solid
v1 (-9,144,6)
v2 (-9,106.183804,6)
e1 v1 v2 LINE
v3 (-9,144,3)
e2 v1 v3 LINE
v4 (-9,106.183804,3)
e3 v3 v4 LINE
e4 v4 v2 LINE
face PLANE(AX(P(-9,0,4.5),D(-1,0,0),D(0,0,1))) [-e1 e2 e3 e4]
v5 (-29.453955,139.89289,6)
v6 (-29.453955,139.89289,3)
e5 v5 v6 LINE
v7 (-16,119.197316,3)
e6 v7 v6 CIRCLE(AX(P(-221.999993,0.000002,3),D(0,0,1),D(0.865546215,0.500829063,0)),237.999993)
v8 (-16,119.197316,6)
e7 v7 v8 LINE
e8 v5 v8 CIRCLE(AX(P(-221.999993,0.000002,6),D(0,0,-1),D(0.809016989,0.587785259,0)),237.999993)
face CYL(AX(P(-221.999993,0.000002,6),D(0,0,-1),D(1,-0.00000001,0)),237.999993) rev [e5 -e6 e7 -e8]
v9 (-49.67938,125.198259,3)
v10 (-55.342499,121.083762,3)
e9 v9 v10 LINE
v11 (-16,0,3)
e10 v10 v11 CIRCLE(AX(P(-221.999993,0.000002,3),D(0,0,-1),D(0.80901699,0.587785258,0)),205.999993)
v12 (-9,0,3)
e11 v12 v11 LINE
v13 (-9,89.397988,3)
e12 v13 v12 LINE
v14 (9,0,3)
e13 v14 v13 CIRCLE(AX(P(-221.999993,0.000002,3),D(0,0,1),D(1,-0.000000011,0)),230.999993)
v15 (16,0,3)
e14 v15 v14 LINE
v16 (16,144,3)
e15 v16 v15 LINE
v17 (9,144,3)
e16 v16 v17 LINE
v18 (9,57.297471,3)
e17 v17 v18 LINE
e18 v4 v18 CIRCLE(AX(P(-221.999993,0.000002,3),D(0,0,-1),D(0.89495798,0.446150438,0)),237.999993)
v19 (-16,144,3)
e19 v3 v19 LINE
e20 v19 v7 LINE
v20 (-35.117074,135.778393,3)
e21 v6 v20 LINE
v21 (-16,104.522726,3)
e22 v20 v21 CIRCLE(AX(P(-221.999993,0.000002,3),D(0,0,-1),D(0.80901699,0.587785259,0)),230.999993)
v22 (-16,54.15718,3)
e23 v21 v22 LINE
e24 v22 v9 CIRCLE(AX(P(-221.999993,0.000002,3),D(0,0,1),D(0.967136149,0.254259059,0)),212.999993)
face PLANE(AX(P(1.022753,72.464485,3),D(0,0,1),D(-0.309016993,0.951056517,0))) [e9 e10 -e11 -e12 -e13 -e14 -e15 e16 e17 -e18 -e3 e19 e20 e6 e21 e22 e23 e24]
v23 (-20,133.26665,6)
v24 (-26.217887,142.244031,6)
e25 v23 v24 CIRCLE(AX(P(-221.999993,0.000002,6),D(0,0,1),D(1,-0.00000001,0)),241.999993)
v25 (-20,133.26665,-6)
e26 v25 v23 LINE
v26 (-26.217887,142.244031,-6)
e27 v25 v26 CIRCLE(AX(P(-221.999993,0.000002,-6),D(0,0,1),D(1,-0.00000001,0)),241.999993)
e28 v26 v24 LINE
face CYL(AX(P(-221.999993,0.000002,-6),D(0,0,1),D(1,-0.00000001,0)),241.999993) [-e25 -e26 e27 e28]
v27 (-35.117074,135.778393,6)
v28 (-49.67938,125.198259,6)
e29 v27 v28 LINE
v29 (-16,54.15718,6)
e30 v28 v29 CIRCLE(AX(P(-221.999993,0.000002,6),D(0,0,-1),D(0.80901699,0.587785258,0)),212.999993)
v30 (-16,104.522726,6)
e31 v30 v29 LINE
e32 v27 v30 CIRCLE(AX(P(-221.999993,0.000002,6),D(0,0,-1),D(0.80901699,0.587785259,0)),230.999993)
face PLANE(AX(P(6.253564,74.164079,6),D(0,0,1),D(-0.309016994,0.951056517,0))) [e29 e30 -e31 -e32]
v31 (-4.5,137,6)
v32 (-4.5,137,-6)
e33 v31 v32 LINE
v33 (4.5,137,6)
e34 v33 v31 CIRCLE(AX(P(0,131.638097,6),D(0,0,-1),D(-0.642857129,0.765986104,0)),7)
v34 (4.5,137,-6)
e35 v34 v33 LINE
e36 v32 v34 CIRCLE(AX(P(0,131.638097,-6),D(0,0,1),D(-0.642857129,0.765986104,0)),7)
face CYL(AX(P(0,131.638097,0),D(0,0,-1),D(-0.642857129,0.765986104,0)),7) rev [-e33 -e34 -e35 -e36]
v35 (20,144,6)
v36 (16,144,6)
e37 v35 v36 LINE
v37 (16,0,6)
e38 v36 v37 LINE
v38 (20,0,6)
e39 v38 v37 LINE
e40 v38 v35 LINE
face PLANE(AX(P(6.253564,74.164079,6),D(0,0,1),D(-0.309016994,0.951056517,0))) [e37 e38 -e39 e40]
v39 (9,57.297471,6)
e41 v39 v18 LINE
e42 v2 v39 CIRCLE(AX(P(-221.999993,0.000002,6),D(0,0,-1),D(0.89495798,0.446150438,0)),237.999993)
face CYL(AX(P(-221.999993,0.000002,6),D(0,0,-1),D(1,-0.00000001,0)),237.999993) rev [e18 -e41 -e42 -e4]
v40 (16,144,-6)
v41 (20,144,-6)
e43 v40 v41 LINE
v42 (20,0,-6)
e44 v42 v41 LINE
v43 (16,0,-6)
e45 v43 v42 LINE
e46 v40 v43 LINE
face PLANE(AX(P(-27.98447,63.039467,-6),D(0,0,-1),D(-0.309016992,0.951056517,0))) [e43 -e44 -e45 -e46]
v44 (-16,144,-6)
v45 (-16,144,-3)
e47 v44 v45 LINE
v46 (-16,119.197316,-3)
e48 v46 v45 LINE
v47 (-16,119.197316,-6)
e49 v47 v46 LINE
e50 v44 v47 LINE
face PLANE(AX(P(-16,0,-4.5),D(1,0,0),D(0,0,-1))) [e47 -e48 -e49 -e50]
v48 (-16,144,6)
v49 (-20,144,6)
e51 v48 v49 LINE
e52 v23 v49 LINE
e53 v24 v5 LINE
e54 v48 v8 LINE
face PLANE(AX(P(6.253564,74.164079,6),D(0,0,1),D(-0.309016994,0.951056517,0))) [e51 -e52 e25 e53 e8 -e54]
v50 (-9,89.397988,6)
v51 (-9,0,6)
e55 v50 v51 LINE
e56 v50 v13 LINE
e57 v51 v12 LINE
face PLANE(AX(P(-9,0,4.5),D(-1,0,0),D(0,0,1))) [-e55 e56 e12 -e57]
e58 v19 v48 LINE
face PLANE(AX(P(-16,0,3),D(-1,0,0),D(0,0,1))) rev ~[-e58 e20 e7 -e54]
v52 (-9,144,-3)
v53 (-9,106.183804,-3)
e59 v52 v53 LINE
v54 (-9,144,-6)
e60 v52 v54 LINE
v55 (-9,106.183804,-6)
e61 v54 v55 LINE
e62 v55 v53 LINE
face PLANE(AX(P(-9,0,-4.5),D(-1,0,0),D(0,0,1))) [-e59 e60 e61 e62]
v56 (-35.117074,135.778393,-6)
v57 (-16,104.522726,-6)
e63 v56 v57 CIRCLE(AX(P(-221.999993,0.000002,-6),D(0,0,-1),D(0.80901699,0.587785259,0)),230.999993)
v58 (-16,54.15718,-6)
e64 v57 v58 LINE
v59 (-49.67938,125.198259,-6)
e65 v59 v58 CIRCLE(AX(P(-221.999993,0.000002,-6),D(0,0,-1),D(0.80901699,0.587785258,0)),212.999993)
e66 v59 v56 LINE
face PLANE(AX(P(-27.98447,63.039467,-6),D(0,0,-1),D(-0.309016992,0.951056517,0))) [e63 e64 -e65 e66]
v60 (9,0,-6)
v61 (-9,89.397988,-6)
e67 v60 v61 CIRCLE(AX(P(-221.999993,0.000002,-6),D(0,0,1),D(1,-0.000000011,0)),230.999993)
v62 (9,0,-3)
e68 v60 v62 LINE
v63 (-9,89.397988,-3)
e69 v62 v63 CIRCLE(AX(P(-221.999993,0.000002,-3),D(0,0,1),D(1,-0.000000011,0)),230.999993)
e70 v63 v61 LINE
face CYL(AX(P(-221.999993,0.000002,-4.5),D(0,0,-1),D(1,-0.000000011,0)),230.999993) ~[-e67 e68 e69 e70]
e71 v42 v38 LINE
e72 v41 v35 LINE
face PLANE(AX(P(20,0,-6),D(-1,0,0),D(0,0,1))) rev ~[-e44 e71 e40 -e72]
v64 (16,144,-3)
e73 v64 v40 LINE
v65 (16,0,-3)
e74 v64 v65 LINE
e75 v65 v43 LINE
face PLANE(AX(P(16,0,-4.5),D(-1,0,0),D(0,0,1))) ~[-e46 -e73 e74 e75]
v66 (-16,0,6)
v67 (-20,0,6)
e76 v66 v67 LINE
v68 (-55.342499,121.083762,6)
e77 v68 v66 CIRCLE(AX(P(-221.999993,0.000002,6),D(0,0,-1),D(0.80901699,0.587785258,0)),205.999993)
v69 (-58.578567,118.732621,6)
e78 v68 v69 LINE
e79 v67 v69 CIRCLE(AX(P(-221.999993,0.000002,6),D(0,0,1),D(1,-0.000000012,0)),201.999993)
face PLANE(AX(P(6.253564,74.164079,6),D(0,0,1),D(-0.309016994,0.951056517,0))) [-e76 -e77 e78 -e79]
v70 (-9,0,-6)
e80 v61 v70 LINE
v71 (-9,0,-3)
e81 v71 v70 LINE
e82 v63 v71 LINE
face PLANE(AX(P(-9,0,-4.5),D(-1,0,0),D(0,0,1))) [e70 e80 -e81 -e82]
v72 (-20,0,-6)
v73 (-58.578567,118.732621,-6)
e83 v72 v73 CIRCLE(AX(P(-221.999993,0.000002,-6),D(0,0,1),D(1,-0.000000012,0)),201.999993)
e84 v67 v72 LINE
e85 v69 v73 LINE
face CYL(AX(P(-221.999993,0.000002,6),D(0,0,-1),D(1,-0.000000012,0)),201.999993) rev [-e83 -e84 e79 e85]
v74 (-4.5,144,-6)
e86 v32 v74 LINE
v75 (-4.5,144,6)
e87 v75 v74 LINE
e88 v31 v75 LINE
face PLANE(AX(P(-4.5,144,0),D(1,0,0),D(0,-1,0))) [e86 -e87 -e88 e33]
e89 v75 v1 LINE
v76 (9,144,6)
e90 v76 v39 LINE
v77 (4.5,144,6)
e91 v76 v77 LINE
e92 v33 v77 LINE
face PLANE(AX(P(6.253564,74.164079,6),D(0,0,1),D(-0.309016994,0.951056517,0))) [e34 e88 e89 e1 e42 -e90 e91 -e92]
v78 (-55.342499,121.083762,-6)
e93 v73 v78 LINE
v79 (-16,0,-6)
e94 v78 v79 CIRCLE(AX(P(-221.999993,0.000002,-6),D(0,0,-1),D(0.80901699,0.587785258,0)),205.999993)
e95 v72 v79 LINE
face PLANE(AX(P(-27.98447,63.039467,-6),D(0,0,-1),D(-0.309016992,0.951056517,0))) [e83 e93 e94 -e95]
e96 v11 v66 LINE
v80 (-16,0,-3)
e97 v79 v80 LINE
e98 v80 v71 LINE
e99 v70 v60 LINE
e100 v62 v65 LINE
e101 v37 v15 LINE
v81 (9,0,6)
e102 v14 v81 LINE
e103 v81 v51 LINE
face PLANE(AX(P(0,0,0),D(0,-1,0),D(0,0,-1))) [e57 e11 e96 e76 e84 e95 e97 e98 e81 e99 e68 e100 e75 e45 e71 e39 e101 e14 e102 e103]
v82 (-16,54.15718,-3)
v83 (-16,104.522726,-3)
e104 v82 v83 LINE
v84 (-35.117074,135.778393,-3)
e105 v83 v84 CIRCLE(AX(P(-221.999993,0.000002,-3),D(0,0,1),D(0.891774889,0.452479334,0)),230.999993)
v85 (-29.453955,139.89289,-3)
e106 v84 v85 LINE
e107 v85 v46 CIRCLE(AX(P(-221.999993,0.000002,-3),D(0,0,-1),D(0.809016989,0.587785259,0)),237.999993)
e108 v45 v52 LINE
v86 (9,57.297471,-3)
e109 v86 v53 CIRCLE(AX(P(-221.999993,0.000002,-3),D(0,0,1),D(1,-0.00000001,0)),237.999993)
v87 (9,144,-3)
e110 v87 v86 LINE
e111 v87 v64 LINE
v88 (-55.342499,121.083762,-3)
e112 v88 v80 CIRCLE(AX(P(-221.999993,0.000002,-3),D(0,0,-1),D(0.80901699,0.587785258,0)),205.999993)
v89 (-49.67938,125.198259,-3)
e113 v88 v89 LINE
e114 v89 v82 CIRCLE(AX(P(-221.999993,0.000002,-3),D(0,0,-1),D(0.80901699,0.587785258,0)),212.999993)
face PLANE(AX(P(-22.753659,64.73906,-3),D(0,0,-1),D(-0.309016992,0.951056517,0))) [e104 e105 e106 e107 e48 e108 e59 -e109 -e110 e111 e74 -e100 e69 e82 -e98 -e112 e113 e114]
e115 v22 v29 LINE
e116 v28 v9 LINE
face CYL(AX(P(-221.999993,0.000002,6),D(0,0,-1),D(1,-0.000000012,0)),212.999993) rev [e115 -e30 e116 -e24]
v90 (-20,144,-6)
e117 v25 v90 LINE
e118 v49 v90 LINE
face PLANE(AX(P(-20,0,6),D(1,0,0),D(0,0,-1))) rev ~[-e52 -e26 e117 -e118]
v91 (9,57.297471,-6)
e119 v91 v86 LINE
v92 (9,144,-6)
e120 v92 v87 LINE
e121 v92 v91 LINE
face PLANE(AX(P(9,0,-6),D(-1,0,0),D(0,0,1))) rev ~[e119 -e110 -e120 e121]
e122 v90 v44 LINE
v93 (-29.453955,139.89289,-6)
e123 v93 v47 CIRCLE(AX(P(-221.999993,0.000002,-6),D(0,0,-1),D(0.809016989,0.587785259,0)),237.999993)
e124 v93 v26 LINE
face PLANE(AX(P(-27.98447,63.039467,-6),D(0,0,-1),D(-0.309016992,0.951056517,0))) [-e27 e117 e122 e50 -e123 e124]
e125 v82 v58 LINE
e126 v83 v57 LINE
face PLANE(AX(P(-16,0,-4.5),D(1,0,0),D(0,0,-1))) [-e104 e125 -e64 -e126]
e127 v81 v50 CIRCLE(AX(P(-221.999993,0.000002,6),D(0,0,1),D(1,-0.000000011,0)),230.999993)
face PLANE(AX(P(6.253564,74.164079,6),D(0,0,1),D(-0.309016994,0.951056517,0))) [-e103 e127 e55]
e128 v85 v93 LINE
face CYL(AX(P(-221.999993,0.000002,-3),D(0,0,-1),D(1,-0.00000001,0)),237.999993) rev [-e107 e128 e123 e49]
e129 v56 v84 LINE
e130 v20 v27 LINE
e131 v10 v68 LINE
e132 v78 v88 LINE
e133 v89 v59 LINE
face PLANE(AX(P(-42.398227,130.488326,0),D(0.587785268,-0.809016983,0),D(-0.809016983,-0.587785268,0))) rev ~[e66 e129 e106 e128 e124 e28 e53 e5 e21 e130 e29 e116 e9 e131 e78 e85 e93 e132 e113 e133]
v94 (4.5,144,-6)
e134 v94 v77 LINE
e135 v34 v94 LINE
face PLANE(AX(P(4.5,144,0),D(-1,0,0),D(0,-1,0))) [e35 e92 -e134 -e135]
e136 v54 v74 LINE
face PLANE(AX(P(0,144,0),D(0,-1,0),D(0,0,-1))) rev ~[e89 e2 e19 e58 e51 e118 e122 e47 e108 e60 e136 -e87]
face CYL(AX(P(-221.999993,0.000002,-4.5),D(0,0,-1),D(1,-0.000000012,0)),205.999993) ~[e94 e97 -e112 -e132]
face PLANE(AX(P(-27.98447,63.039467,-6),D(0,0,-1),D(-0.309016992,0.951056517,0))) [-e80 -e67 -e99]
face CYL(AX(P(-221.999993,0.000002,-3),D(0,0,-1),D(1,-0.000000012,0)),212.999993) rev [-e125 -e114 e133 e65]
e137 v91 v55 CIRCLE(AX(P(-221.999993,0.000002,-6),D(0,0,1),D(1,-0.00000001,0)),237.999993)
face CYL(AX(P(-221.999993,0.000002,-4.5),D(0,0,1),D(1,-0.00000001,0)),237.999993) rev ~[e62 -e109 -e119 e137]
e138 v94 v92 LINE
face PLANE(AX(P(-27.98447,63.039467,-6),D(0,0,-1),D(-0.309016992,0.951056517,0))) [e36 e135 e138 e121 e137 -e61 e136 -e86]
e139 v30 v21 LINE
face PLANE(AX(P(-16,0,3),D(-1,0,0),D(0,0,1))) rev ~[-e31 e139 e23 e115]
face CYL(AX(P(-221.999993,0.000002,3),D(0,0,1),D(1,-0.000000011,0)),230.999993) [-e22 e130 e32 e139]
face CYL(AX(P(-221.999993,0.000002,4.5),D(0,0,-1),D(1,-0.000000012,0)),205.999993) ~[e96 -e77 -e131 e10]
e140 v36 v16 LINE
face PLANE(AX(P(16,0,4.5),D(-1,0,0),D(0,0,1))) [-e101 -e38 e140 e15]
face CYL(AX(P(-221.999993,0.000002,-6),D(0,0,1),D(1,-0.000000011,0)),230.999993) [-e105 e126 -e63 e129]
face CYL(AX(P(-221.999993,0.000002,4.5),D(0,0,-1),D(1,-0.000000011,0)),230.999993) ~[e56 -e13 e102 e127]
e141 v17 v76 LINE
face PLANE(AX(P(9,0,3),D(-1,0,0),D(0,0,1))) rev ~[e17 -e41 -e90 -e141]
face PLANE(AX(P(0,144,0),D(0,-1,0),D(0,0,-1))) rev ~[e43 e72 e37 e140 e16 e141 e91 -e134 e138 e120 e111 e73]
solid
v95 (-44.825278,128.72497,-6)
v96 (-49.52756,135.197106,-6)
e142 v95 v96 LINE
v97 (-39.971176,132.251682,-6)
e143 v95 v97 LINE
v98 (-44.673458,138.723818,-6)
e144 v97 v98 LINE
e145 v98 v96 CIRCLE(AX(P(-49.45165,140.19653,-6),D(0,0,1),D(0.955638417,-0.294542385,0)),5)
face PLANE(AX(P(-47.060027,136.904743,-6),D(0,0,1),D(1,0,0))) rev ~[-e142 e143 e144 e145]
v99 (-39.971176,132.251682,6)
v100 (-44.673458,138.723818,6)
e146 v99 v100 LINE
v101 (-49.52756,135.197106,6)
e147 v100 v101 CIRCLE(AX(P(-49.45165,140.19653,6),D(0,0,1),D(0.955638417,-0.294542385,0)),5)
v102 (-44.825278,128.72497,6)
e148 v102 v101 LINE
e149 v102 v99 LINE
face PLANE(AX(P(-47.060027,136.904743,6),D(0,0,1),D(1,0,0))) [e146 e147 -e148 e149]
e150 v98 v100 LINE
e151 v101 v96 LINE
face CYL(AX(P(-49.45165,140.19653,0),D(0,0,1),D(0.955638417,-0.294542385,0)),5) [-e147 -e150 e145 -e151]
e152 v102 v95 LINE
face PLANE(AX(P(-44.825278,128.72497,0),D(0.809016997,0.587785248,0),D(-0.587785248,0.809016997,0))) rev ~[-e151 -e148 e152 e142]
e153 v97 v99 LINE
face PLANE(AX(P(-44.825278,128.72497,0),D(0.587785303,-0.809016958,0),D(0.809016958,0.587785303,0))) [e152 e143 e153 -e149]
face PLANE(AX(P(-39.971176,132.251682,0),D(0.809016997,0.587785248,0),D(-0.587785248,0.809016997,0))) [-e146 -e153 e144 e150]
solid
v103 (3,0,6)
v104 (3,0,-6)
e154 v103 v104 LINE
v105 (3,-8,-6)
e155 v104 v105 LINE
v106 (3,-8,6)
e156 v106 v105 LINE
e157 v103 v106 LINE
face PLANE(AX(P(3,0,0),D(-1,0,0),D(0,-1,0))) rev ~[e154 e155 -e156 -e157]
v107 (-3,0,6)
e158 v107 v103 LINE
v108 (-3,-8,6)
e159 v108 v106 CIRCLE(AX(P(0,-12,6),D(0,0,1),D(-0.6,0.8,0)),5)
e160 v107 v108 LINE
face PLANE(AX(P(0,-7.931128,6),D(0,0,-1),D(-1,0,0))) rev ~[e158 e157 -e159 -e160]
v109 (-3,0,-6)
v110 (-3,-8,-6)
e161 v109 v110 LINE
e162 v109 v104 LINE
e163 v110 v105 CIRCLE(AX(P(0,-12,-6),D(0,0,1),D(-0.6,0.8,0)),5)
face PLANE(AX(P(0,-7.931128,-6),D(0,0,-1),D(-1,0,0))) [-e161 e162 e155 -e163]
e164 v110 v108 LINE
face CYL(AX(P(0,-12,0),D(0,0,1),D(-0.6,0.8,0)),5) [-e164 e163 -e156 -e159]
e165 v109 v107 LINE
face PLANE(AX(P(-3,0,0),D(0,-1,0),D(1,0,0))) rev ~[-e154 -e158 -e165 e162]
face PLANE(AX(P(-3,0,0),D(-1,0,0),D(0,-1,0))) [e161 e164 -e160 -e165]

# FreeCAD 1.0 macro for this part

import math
import FreeCAD as App
import Part
import Sketcher

V = App.Vector
Q = App.Units.Quantity


def add_polygon(sketch, points):
    """Adds a closed chain of lines whose ends are joined by coincident constraints."""
    first, n = sketch.GeometryCount, len(points)
    for a, b in zip(points, points[1:] + points[:1]):
        sketch.addGeometry(Part.LineSegment(App.Vector(*a, 0), App.Vector(*b, 0)), False)
    for i in range(n):
        sketch.addConstraint(Sketcher.Constraint("Coincident", first + i, 2, first + (i + 1) % n, 1))

doc = App.newDocument("Part")
body = doc.addObject("PartDesign::Body", "Body")

# Sketch on XZ plane
sketch1 = doc.addObject("Sketcher::SketchObject", "Sketch")
body.addObject(sketch1)
sketch1.AttachmentSupport = (doc.XZ_Plane, [""])
sketch1.MapMode = "FlatFace"
add_polygon(sketch1, [(-20, 6), (-20, -6), (-16, -6), (-16, -3), (-9, -3), (-9, -6), (9, -6), (9, -3), (16, -3), (16, -6), (20, -6), (20, 6), (16, 6), (16, 3), (9, 3), (9, 6), (-9, 6), (-9, 3), (-16, 3), (-16, 6)])  # lines 0-19
sketch1.addConstraint(Sketcher.Constraint("Vertical", 0))
sketch1.addConstraint(Sketcher.Constraint("Horizontal", 1))
sketch1.addConstraint(Sketcher.Constraint("Vertical", 2))
sketch1.addConstraint(Sketcher.Constraint("Horizontal", 3))
sketch1.addConstraint(Sketcher.Constraint("Vertical", 4))
sketch1.addConstraint(Sketcher.Constraint("Horizontal", 5))
sketch1.addConstraint(Sketcher.Constraint("Vertical", 6))
sketch1.addConstraint(Sketcher.Constraint("Horizontal", 7))
sketch1.addConstraint(Sketcher.Constraint("Vertical", 8))
sketch1.addConstraint(Sketcher.Constraint("Horizontal", 9))
sketch1.addConstraint(Sketcher.Constraint("Vertical", 10))
sketch1.addConstraint(Sketcher.Constraint("Horizontal", 11))
sketch1.addConstraint(Sketcher.Constraint("Vertical", 12))
sketch1.addConstraint(Sketcher.Constraint("Horizontal", 13))
sketch1.addConstraint(Sketcher.Constraint("Vertical", 14))
sketch1.addConstraint(Sketcher.Constraint("Horizontal", 15))
sketch1.addConstraint(Sketcher.Constraint("Vertical", 16))
sketch1.addConstraint(Sketcher.Constraint("Horizontal", 17))
sketch1.addConstraint(Sketcher.Constraint("Vertical", 18))
sketch1.addConstraint(Sketcher.Constraint("Horizontal", 19))
sketch1.addConstraint(Sketcher.Constraint("Symmetric", 0, 2, 10, 2, -1, 1))
sketch1.addConstraint(Sketcher.Constraint("Symmetric", 2, 2, 12, 2, -1, 1))
sketch1.addConstraint(Sketcher.Constraint("Symmetric", 4, 2, 14, 2, -1, 1))
sketch1.addConstraint(Sketcher.Constraint("Symmetric", 6, 2, 16, 2, -1, 1))
sketch1.addConstraint(Sketcher.Constraint("Symmetric", 8, 2, 18, 2, -1, 1))
sketch1.addConstraint(Sketcher.Constraint("Symmetric", 3, 2, 6, 2, -2))
sketch1.addConstraint(Sketcher.Constraint("Symmetric", 1, 2, 8, 2, -2))
sketch1.addConstraint(Sketcher.Constraint("Horizontal", 1, 2, 4, 2))
sketch1.addConstraint(Sketcher.Constraint("DistanceX", 1, 1, 1, 2, 4.0))
sketch1.addConstraint(Sketcher.Constraint("DistanceX", 3, 1, 3, 2, 7.0))
sketch1.addConstraint(Sketcher.Constraint("DistanceX", 5, 1, 5, 2, 18.0))
sketch1.addConstraint(Sketcher.Constraint("DistanceY", 0, 2, 0, 1, 12.0))
sketch1.addConstraint(Sketcher.Constraint("DistanceY", 2, 1, 2, 2, 3.0))

# Sketch on XY plane
sketch2 = doc.addObject("Sketcher::SketchObject", "Sketch001")
body.addObject(sketch2)
sketch2.AttachmentSupport = (doc.XY_Plane, [""])
sketch2.MapMode = "FlatFace"
sketch2.addGeometry(Part.ArcOfCircle(Part.Circle(V(-221.999993, 0.000002, 0), V(0, 0, 1), 221.999993), math.radians(-0.000001), math.radians(36)), False)
sketch2.addConstraint(Sketcher.Constraint("Coincident", 0, 1, -1, 1))
sketch2.addConstraint(Sketcher.Constraint("Radius", 0, 221.999993))
sketch2.addConstraint(Sketcher.Constraint("DistanceX", 0, 2, -1, 1, 42.398227))
sketch2.addConstraint(Sketcher.Constraint("DistanceY", -1, 1, 0, 2, 130.488326))
doc.recompute()

additivepipe = doc.addObject("PartDesign::AdditivePipe", "AdditivePipe")
body.addObject(additivepipe)
additivepipe.Profile = sketch1
additivepipe.Spine = (sketch2, ["Edge1"])

# Sketch on XZ plane
sketch3 = doc.addObject("Sketcher::SketchObject", "Sketch002")
body.addObject(sketch3)
sketch3.AttachmentSupport = (doc.XZ_Plane, [""])
sketch3.MapMode = "FlatFace"
add_polygon(sketch3, [(-20, 6), (-20, -6), (-16, -6), (-16, -3), (-9, -3), (-9, -6), (9, -6), (9, -3), (16, -3), (16, -6), (20, -6), (20, 6), (16, 6), (16, 3), (9, 3), (9, 6), (-9, 6), (-9, 3), (-16, 3), (-16, 6)])  # lines 0-19
sketch3.addConstraint(Sketcher.Constraint("Vertical", 0))
sketch3.addConstraint(Sketcher.Constraint("Horizontal", 1))
sketch3.addConstraint(Sketcher.Constraint("Vertical", 2))
sketch3.addConstraint(Sketcher.Constraint("Horizontal", 3))
sketch3.addConstraint(Sketcher.Constraint("Vertical", 4))
sketch3.addConstraint(Sketcher.Constraint("Horizontal", 5))
sketch3.addConstraint(Sketcher.Constraint("Vertical", 6))
sketch3.addConstraint(Sketcher.Constraint("Horizontal", 7))
sketch3.addConstraint(Sketcher.Constraint("Vertical", 8))
sketch3.addConstraint(Sketcher.Constraint("Horizontal", 9))
sketch3.addConstraint(Sketcher.Constraint("Vertical", 10))
sketch3.addConstraint(Sketcher.Constraint("Horizontal", 11))
sketch3.addConstraint(Sketcher.Constraint("Vertical", 12))
sketch3.addConstraint(Sketcher.Constraint("Horizontal", 13))
sketch3.addConstraint(Sketcher.Constraint("Vertical", 14))
sketch3.addConstraint(Sketcher.Constraint("Horizontal", 15))
sketch3.addConstraint(Sketcher.Constraint("Vertical", 16))
sketch3.addConstraint(Sketcher.Constraint("Horizontal", 17))
sketch3.addConstraint(Sketcher.Constraint("Vertical", 18))
sketch3.addConstraint(Sketcher.Constraint("Horizontal", 19))
sketch3.addConstraint(Sketcher.Constraint("Symmetric", 0, 2, 10, 2, -1, 1))
sketch3.addConstraint(Sketcher.Constraint("Symmetric", 2, 2, 12, 2, -1, 1))
sketch3.addConstraint(Sketcher.Constraint("Symmetric", 4, 2, 14, 2, -1, 1))
sketch3.addConstraint(Sketcher.Constraint("Symmetric", 6, 2, 16, 2, -1, 1))
sketch3.addConstraint(Sketcher.Constraint("Symmetric", 8, 2, 18, 2, -1, 1))
sketch3.addConstraint(Sketcher.Constraint("Symmetric", 3, 2, 6, 2, -2))
sketch3.addConstraint(Sketcher.Constraint("Symmetric", 1, 2, 8, 2, -2))
sketch3.addConstraint(Sketcher.Constraint("Horizontal", 1, 2, 4, 2))
sketch3.addConstraint(Sketcher.Constraint("DistanceX", 1, 1, 1, 2, 4.0))
sketch3.addConstraint(Sketcher.Constraint("DistanceX", 3, 1, 3, 2, 7.0))
sketch3.addConstraint(Sketcher.Constraint("DistanceX", 5, 1, 5, 2, 18.0))
sketch3.addConstraint(Sketcher.Constraint("DistanceY", 0, 2, 0, 1, 12.0))
sketch3.addConstraint(Sketcher.Constraint("DistanceY", 2, 1, 2, 2, 3.0))

# Sketch on XY plane
sketch4 = doc.addObject("Sketcher::SketchObject", "Sketch003")
body.addObject(sketch4)
sketch4.AttachmentSupport = (doc.XY_Plane, [""])
sketch4.MapMode = "FlatFace"
sketch4.addGeometry(Part.LineSegment(V(0, 0, 0), V(0, 144, 0)), False)
sketch4.addConstraint(Sketcher.Constraint("Vertical", 0))
sketch4.addConstraint(Sketcher.Constraint("Coincident", 0, 1, -1, 1))
sketch4.addConstraint(Sketcher.Constraint("DistanceY", 0, 1, 0, 2, 144.0))
doc.recompute()

additivepipe2 = doc.addObject("PartDesign::AdditivePipe", "AdditivePipe001")
body.addObject(additivepipe2)
additivepipe2.Profile = sketch3
additivepipe2.Spine = (sketch4, ["Edge1"])

# Sketch on XZ plane
sketch5 = doc.addObject("Sketcher::SketchObject", "Sketch004")
body.addObject(sketch5)
sketch5.AttachmentSupport = (doc.XZ_Plane, [""])
sketch5.MapMode = "FlatFace"
add_polygon(sketch5, [(-16, 6), (-16, 3), (-9, 3), (-9, 6)])  # lines 0-3
sketch5.addConstraint(Sketcher.Constraint("Vertical", 0))
sketch5.addConstraint(Sketcher.Constraint("Horizontal", 1))
sketch5.addConstraint(Sketcher.Constraint("Vertical", 2))
sketch5.addConstraint(Sketcher.Constraint("Horizontal", 3))
sketch5.addConstraint(Sketcher.Constraint("DistanceX", 1, 1, 1, 2, 7.0))
sketch5.addConstraint(Sketcher.Constraint("DistanceY", 0, 2, 0, 1, 3.0))
sketch5.addConstraint(Sketcher.Constraint("DistanceX", 0, 2, -1, 1, 16.0))
sketch5.addConstraint(Sketcher.Constraint("DistanceY", -1, 1, 0, 2, 3.0))

# Sketch on XY plane
sketch6 = doc.addObject("Sketcher::SketchObject", "Sketch005")
body.addObject(sketch6)
sketch6.AttachmentSupport = (doc.XY_Plane, [""])
sketch6.MapMode = "FlatFace"
sketch6.addGeometry(Part.LineSegment(V(0, 0, 0), V(0, 144, 0)), False)
sketch6.addConstraint(Sketcher.Constraint("Vertical", 0))
sketch6.addConstraint(Sketcher.Constraint("Coincident", 0, 1, -1, 1))
sketch6.addConstraint(Sketcher.Constraint("DistanceY", 0, 1, 0, 2, 144.0))
doc.recompute()

subtractivepipe = doc.addObject("PartDesign::SubtractivePipe", "SubtractivePipe")
body.addObject(subtractivepipe)
subtractivepipe.Profile = sketch5
subtractivepipe.Spine = (sketch6, ["Edge1"])

# Sketch on XZ plane
sketch7 = doc.addObject("Sketcher::SketchObject", "Sketch006")
body.addObject(sketch7)
sketch7.AttachmentSupport = (doc.XZ_Plane, [""])
sketch7.MapMode = "FlatFace"
add_polygon(sketch7, [(-16, 6), (-16, 3), (-9, 3), (-9, 6)])  # lines 0-3
sketch7.addConstraint(Sketcher.Constraint("Vertical", 0))
sketch7.addConstraint(Sketcher.Constraint("Horizontal", 1))
sketch7.addConstraint(Sketcher.Constraint("Vertical", 2))
sketch7.addConstraint(Sketcher.Constraint("Horizontal", 3))
sketch7.addConstraint(Sketcher.Constraint("DistanceX", 1, 1, 1, 2, 7.0))
sketch7.addConstraint(Sketcher.Constraint("DistanceY", 0, 2, 0, 1, 3.0))
sketch7.addConstraint(Sketcher.Constraint("DistanceX", 0, 2, -1, 1, 16.0))
sketch7.addConstraint(Sketcher.Constraint("DistanceY", -1, 1, 0, 2, 3.0))

# Sketch on XY plane
sketch8 = doc.addObject("Sketcher::SketchObject", "Sketch007")
body.addObject(sketch8)
sketch8.AttachmentSupport = (doc.XY_Plane, [""])
sketch8.MapMode = "FlatFace"
sketch8.addGeometry(Part.ArcOfCircle(Part.Circle(V(-221.999993, 0.000002, 0), V(0, 0, 1), 221.999993), math.radians(-0.000001), math.radians(36)), False)
sketch8.addConstraint(Sketcher.Constraint("Coincident", 0, 1, -1, 1))
sketch8.addConstraint(Sketcher.Constraint("Radius", 0, 221.999993))
sketch8.addConstraint(Sketcher.Constraint("DistanceX", 0, 2, -1, 1, 42.398227))
sketch8.addConstraint(Sketcher.Constraint("DistanceY", -1, 1, 0, 2, 130.488326))
doc.recompute()

subtractivepipe2 = doc.addObject("PartDesign::SubtractivePipe", "SubtractivePipe001")
body.addObject(subtractivepipe2)
subtractivepipe2.Profile = sketch7
subtractivepipe2.Spine = (sketch8, ["Edge1"])

# Sketch on XZ plane
sketch9 = doc.addObject("Sketcher::SketchObject", "Sketch008")
body.addObject(sketch9)
sketch9.AttachmentSupport = (doc.XZ_Plane, [""])
sketch9.MapMode = "FlatFace"
add_polygon(sketch9, [(9, 6), (9, 3), (16, 3), (16, 6)])  # lines 0-3
sketch9.addConstraint(Sketcher.Constraint("Vertical", 0))
sketch9.addConstraint(Sketcher.Constraint("Horizontal", 1))
sketch9.addConstraint(Sketcher.Constraint("Vertical", 2))
sketch9.addConstraint(Sketcher.Constraint("Horizontal", 3))
sketch9.addConstraint(Sketcher.Constraint("DistanceX", 1, 1, 1, 2, 7.0))
sketch9.addConstraint(Sketcher.Constraint("DistanceY", 0, 2, 0, 1, 3.0))
sketch9.addConstraint(Sketcher.Constraint("DistanceX", -1, 1, 0, 2, 9.0))
sketch9.addConstraint(Sketcher.Constraint("DistanceY", -1, 1, 0, 2, 3.0))

# Sketch on XY plane
sketch10 = doc.addObject("Sketcher::SketchObject", "Sketch009")
body.addObject(sketch10)
sketch10.AttachmentSupport = (doc.XY_Plane, [""])
sketch10.MapMode = "FlatFace"
sketch10.addGeometry(Part.ArcOfCircle(Part.Circle(V(-221.999993, 0.000002, 0), V(0, 0, 1), 221.999993), math.radians(-0.000001), math.radians(36)), False)
sketch10.addConstraint(Sketcher.Constraint("Coincident", 0, 1, -1, 1))
sketch10.addConstraint(Sketcher.Constraint("Radius", 0, 221.999993))
sketch10.addConstraint(Sketcher.Constraint("DistanceX", 0, 2, -1, 1, 42.398227))
sketch10.addConstraint(Sketcher.Constraint("DistanceY", -1, 1, 0, 2, 130.488326))
doc.recompute()

subtractivepipe3 = doc.addObject("PartDesign::SubtractivePipe", "SubtractivePipe002")
body.addObject(subtractivepipe3)
subtractivepipe3.Profile = sketch9
subtractivepipe3.Spine = (sketch10, ["Edge1"])

# Sketch on XZ plane
sketch11 = doc.addObject("Sketcher::SketchObject", "Sketch010")
body.addObject(sketch11)
sketch11.AttachmentSupport = (doc.XZ_Plane, [""])
sketch11.MapMode = "FlatFace"
add_polygon(sketch11, [(9, 6), (9, 3), (16, 3), (16, 6)])  # lines 0-3
sketch11.addConstraint(Sketcher.Constraint("Vertical", 0))
sketch11.addConstraint(Sketcher.Constraint("Horizontal", 1))
sketch11.addConstraint(Sketcher.Constraint("Vertical", 2))
sketch11.addConstraint(Sketcher.Constraint("Horizontal", 3))
sketch11.addConstraint(Sketcher.Constraint("DistanceX", 1, 1, 1, 2, 7.0))
sketch11.addConstraint(Sketcher.Constraint("DistanceY", 0, 2, 0, 1, 3.0))
sketch11.addConstraint(Sketcher.Constraint("DistanceX", -1, 1, 0, 2, 9.0))
sketch11.addConstraint(Sketcher.Constraint("DistanceY", -1, 1, 0, 2, 3.0))

# Sketch on XY plane
sketch12 = doc.addObject("Sketcher::SketchObject", "Sketch011")
body.addObject(sketch12)
sketch12.AttachmentSupport = (doc.XY_Plane, [""])
sketch12.MapMode = "FlatFace"
sketch12.addGeometry(Part.LineSegment(V(0, 0, 0), V(0, 144, 0)), False)
sketch12.addConstraint(Sketcher.Constraint("Vertical", 0))
sketch12.addConstraint(Sketcher.Constraint("Coincident", 0, 1, -1, 1))
sketch12.addConstraint(Sketcher.Constraint("DistanceY", 0, 1, 0, 2, 144.0))
doc.recompute()

subtractivepipe4 = doc.addObject("PartDesign::SubtractivePipe", "SubtractivePipe003")
body.addObject(subtractivepipe4)
subtractivepipe4.Profile = sketch11
subtractivepipe4.Spine = (sketch12, ["Edge1"])
doc.recompute()

mirrored = doc.addObject("PartDesign::Mirrored", "Mirrored")
body.addObject(mirrored)
mirrored.Originals = [subtractivepipe4]
mirrored.MirrorPlane = (doc.XY_Plane, [""])
body.Tip = mirrored

# Sketch on XZ plane
sketch13 = doc.addObject("Sketcher::SketchObject", "Sketch012")
body.addObject(sketch13)
sketch13.AttachmentSupport = (doc.XZ_Plane, [""])
sketch13.MapMode = "FlatFace"
add_polygon(sketch13, [(-16, -3), (-16, -6), (-9, -6), (-9, -3)])  # lines 0-3
sketch13.addConstraint(Sketcher.Constraint("Vertical", 0))
sketch13.addConstraint(Sketcher.Constraint("Horizontal", 1))
sketch13.addConstraint(Sketcher.Constraint("Vertical", 2))
sketch13.addConstraint(Sketcher.Constraint("Horizontal", 3))
sketch13.addConstraint(Sketcher.Constraint("DistanceX", 1, 1, 1, 2, 7.0))
sketch13.addConstraint(Sketcher.Constraint("DistanceY", 0, 2, 0, 1, 3.0))
sketch13.addConstraint(Sketcher.Constraint("DistanceX", 0, 2, -1, 1, 16.0))
sketch13.addConstraint(Sketcher.Constraint("DistanceY", 0, 2, -1, 1, 6.0))

# Sketch on XY plane
sketch14 = doc.addObject("Sketcher::SketchObject", "Sketch013")
body.addObject(sketch14)
sketch14.AttachmentSupport = (doc.XY_Plane, [""])
sketch14.MapMode = "FlatFace"
sketch14.addGeometry(Part.ArcOfCircle(Part.Circle(V(-221.999993, 0.000002, 0), V(0, 0, 1), 221.999993), math.radians(-0.000001), math.radians(36)), False)
sketch14.addConstraint(Sketcher.Constraint("Coincident", 0, 1, -1, 1))
sketch14.addConstraint(Sketcher.Constraint("Radius", 0, 221.999993))
sketch14.addConstraint(Sketcher.Constraint("DistanceX", 0, 2, -1, 1, 42.398227))
sketch14.addConstraint(Sketcher.Constraint("DistanceY", -1, 1, 0, 2, 130.488326))
doc.recompute()

subtractivepipe5 = doc.addObject("PartDesign::SubtractivePipe", "SubtractivePipe004")
body.addObject(subtractivepipe5)
subtractivepipe5.Profile = sketch13
subtractivepipe5.Spine = (sketch14, ["Edge1"])

# Sketch on XZ plane
sketch15 = doc.addObject("Sketcher::SketchObject", "Sketch014")
body.addObject(sketch15)
sketch15.AttachmentSupport = (doc.XZ_Plane, [""])
sketch15.MapMode = "FlatFace"
add_polygon(sketch15, [(-16, -3), (-16, -6), (-9, -6), (-9, -3)])  # lines 0-3
sketch15.addConstraint(Sketcher.Constraint("Vertical", 0))
sketch15.addConstraint(Sketcher.Constraint("Horizontal", 1))
sketch15.addConstraint(Sketcher.Constraint("Vertical", 2))
sketch15.addConstraint(Sketcher.Constraint("Horizontal", 3))
sketch15.addConstraint(Sketcher.Constraint("DistanceX", 1, 1, 1, 2, 7.0))
sketch15.addConstraint(Sketcher.Constraint("DistanceY", 0, 2, 0, 1, 3.0))
sketch15.addConstraint(Sketcher.Constraint("DistanceX", 0, 2, -1, 1, 16.0))
sketch15.addConstraint(Sketcher.Constraint("DistanceY", 0, 2, -1, 1, 6.0))

# Sketch on XY plane
sketch16 = doc.addObject("Sketcher::SketchObject", "Sketch015")
body.addObject(sketch16)
sketch16.AttachmentSupport = (doc.XY_Plane, [""])
sketch16.MapMode = "FlatFace"
sketch16.addGeometry(Part.LineSegment(V(0, 0, 0), V(0, 144, 0)), False)
sketch16.addConstraint(Sketcher.Constraint("Vertical", 0))
sketch16.addConstraint(Sketcher.Constraint("Coincident", 0, 1, -1, 1))
sketch16.addConstraint(Sketcher.Constraint("DistanceY", 0, 1, 0, 2, 144.0))
doc.recompute()

subtractivepipe6 = doc.addObject("PartDesign::SubtractivePipe", "SubtractivePipe005")
body.addObject(subtractivepipe6)
subtractivepipe6.Profile = sketch15
subtractivepipe6.Spine = (sketch16, ["Edge1"])

# Sketch on XZ plane
sketch17 = doc.addObject("Sketcher::SketchObject", "Sketch016")
body.addObject(sketch17)
sketch17.AttachmentSupport = (doc.XZ_Plane, [""])
sketch17.MapMode = "FlatFace"
add_polygon(sketch17, [(9, -3), (9, -6), (16, -6), (16, -3)])  # lines 0-3
sketch17.addConstraint(Sketcher.Constraint("Vertical", 0))
sketch17.addConstraint(Sketcher.Constraint("Horizontal", 1))
sketch17.addConstraint(Sketcher.Constraint("Vertical", 2))
sketch17.addConstraint(Sketcher.Constraint("Horizontal", 3))
sketch17.addConstraint(Sketcher.Constraint("DistanceX", 1, 1, 1, 2, 7.0))
sketch17.addConstraint(Sketcher.Constraint("DistanceY", 0, 2, 0, 1, 3.0))
sketch17.addConstraint(Sketcher.Constraint("DistanceX", -1, 1, 0, 2, 9.0))
sketch17.addConstraint(Sketcher.Constraint("DistanceY", 0, 2, -1, 1, 6.0))

# Sketch on XY plane
sketch18 = doc.addObject("Sketcher::SketchObject", "Sketch017")
body.addObject(sketch18)
sketch18.AttachmentSupport = (doc.XY_Plane, [""])
sketch18.MapMode = "FlatFace"
sketch18.addGeometry(Part.ArcOfCircle(Part.Circle(V(-221.999993, 0.000002, 0), V(0, 0, 1), 221.999993), math.radians(-0.000001), math.radians(36)), False)
sketch18.addConstraint(Sketcher.Constraint("Coincident", 0, 1, -1, 1))
sketch18.addConstraint(Sketcher.Constraint("Radius", 0, 221.999993))
sketch18.addConstraint(Sketcher.Constraint("DistanceX", 0, 2, -1, 1, 42.398227))
sketch18.addConstraint(Sketcher.Constraint("DistanceY", -1, 1, 0, 2, 130.488326))
doc.recompute()

subtractivepipe7 = doc.addObject("PartDesign::SubtractivePipe", "SubtractivePipe006")
body.addObject(subtractivepipe7)
subtractivepipe7.Profile = sketch17
subtractivepipe7.Spine = (sketch18, ["Edge1"])

# Sketch on XY plane
sketch19 = doc.addObject("Sketcher::SketchObject", "Sketch018")
body.addObject(sketch19)
sketch19.AttachmentSupport = (doc.XY_Plane, [""])
sketch19.MapMode = "FlatFace"
sketch19.addGeometry(Part.LineSegment(V(4.5, 144, 0), V(-4.5, 144, 0)), False)
sketch19.addGeometry(Part.LineSegment(V(-4.5, 144, 0), V(-4.5, 137, 0)), False)
sketch19.addGeometry(Part.ArcOfCircle(Part.Circle(V(0, 131.638097, 0), V(0, 0, 1), 7), math.radians(130.0052), math.radians(409.9948)), False)
sketch19.addGeometry(Part.LineSegment(V(4.5, 137, 0), V(4.5, 144, 0)), False)
sketch19.addConstraint(Sketcher.Constraint("Coincident", 0, 2, 1, 1))
sketch19.addConstraint(Sketcher.Constraint("Coincident", 1, 2, 2, 1))
sketch19.addConstraint(Sketcher.Constraint("Coincident", 2, 2, 3, 1))
sketch19.addConstraint(Sketcher.Constraint("Coincident", 3, 2, 0, 1))
sketch19.addConstraint(Sketcher.Constraint("Horizontal", 0))
sketch19.addConstraint(Sketcher.Constraint("Vertical", 1))
sketch19.addConstraint(Sketcher.Constraint("Vertical", 3))
sketch19.addConstraint(Sketcher.Constraint("Symmetric", 1, 2, 2, 2, -2))
sketch19.addConstraint(Sketcher.Constraint("Radius", 2, 7.0))
sketch19.addConstraint(Sketcher.Constraint("DistanceX", 0, 2, 0, 1, 9.0))
sketch19.addConstraint(Sketcher.Constraint("DistanceY", 1, 2, 1, 1, 7.0))
sketch19.addConstraint(Sketcher.Constraint("DistanceY", -1, 1, 0, 2, 144.0))
pocket1 = doc.addObject("PartDesign::Pocket", "Pocket")
body.addObject(pocket1)
pocket1.Profile = sketch19
pocket1.Type = "ThroughAll"
pocket1.Midplane = True
body2 = doc.addObject("PartDesign::Body", "Body001")

# Sketch on XY plane
sketch20 = doc.addObject("Sketcher::SketchObject", "Sketch019")
body2.addObject(sketch20)
sketch20.AttachmentSupport = (doc.getObject("XY_Plane001"), [""])
sketch20.MapMode = "FlatFace"
sketch20.addGeometry(Part.LineSegment(V(3, 0, 0), V(-3, 0, 0)), False)
sketch20.addGeometry(Part.LineSegment(V(-3, 0, 0), V(-3, -8, 0)), False)
sketch20.addGeometry(Part.ArcOfCircle(Part.Circle(V(0, -12, 0), V(0, 0, 1), 5), math.radians(126.869898), math.radians(413.130102)), False)
sketch20.addGeometry(Part.LineSegment(V(3, -8, 0), V(3, 0, 0)), False)
sketch20.addConstraint(Sketcher.Constraint("Coincident", 0, 2, 1, 1))
sketch20.addConstraint(Sketcher.Constraint("Coincident", 1, 2, 2, 1))
sketch20.addConstraint(Sketcher.Constraint("Coincident", 2, 2, 3, 1))
sketch20.addConstraint(Sketcher.Constraint("Coincident", 3, 2, 0, 1))
sketch20.addConstraint(Sketcher.Constraint("Horizontal", 0))
sketch20.addConstraint(Sketcher.Constraint("Vertical", 1))
sketch20.addConstraint(Sketcher.Constraint("Vertical", 3))
sketch20.addConstraint(Sketcher.Constraint("Symmetric", 0, 2, 3, 2, -1, 1))
sketch20.addConstraint(Sketcher.Constraint("PointOnObject", 2, 3, -2))
sketch20.addConstraint(Sketcher.Constraint("Radius", 2, 5.0))
sketch20.addConstraint(Sketcher.Constraint("DistanceX", 0, 2, 0, 1, 6.0))
sketch20.addConstraint(Sketcher.Constraint("DistanceY", 1, 2, 1, 1, 8.0))
pad1 = doc.addObject("PartDesign::Pad", "Pad")
body2.addObject(pad1)
pad1.Profile = sketch20
pad1.Length = 12
pad1.Midplane = True
body3 = doc.addObject("PartDesign::Body", "Body002")

# Sketch on XY plane
sketch21 = doc.addObject("Sketcher::SketchObject", "Sketch020")
body3.addObject(sketch21)
sketch21.AttachmentSupport = (doc.getObject("XY_Plane002"), [""])
sketch21.MapMode = "FlatFace"
sketch21.addGeometry(Part.LineSegment(V(-44.825278, 128.72497, 0), V(-39.971176, 132.251682, 0)), False)
sketch21.addGeometry(Part.LineSegment(V(-39.971176, 132.251682, 0), V(-44.673458, 138.723818, 0)), False)
sketch21.addGeometry(Part.ArcOfCircle(Part.Circle(V(-49.45165, 140.19653, 0), V(0, 0, 1), 5), math.radians(-17.130099), math.radians(269.130106)), False)
sketch21.addGeometry(Part.LineSegment(V(-49.52756, 135.197106, 0), V(-44.825278, 128.72497, 0)), False)
sketch21.addConstraint(Sketcher.Constraint("Coincident", 0, 2, 1, 1))
sketch21.addConstraint(Sketcher.Constraint("Coincident", 1, 2, 2, 1))
sketch21.addConstraint(Sketcher.Constraint("Coincident", 2, 2, 3, 1))
sketch21.addConstraint(Sketcher.Constraint("Coincident", 3, 2, 0, 1))
sketch21.addConstraint(Sketcher.Constraint("Perpendicular", 0, 1))
sketch21.addConstraint(Sketcher.Constraint("Parallel", 1, 3))
sketch21.addConstraint(Sketcher.Constraint("Equal", 1, 3))
sketch21.addConstraint(Sketcher.Constraint("Radius", 2, 5.0))
sketch21.addConstraint(Sketcher.Constraint("Angle", 0, Q("36.000004 deg")))
sketch21.addConstraint(Sketcher.Constraint("Distance", 0, 6.0))
sketch21.addConstraint(Sketcher.Constraint("Distance", 1, 8.0))
sketch21.addConstraint(Sketcher.Constraint("DistanceX", 2, 3, -1, 1, 49.45165))
sketch21.addConstraint(Sketcher.Constraint("DistanceY", -1, 1, 2, 3, 140.19653))
pad2 = doc.addObject("PartDesign::Pad", "Pad001")
body3.addObject(pad2)
pad2.Profile = sketch21
pad2.Length = 12
pad2.Midplane = True

doc.recompute()
